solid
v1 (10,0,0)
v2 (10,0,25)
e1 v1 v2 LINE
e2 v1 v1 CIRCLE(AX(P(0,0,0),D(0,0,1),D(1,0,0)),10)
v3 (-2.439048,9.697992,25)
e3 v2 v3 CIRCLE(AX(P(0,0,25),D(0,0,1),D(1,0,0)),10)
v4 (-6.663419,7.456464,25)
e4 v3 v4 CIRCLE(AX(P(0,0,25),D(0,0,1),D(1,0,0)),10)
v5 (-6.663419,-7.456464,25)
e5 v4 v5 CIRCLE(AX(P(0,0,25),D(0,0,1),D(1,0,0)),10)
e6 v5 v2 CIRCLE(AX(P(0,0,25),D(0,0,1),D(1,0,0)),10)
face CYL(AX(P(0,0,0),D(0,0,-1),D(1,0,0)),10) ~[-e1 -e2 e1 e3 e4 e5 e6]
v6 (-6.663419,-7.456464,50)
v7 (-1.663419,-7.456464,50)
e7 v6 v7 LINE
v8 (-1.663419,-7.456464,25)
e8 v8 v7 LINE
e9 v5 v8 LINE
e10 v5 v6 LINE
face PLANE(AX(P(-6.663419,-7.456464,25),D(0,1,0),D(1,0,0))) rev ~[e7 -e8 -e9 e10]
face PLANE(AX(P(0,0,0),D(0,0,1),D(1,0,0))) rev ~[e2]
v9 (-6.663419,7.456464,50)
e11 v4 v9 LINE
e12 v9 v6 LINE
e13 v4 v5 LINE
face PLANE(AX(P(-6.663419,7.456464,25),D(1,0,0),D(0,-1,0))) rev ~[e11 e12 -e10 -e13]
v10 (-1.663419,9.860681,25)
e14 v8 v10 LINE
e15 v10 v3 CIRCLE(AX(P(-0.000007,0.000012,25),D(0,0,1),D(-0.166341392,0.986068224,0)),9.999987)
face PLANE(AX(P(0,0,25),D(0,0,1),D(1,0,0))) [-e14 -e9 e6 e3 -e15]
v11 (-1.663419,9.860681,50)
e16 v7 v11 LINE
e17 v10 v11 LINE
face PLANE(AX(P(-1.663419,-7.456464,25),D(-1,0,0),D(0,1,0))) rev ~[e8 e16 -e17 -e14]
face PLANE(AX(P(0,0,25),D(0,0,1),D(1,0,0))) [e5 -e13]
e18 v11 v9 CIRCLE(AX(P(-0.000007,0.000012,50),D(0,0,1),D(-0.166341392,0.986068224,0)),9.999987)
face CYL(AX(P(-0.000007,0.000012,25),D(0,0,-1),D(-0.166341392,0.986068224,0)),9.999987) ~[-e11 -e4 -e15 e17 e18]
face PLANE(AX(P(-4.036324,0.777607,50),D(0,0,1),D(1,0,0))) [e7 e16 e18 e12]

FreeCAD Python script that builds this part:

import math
import FreeCAD as App
import Part
import Sketcher
Q = App.Units.Quantity

doc = App.newDocument("Part")
body = doc.addObject("PartDesign::Body", "Body")

# Sketch on XY plane
sketch1 = body.newObject("Sketcher::SketchObject", "Sketch")
sketch1.AttachmentSupport = (doc.getObject("XY_Plane"), [""])
sketch1.MapMode = "FlatFace"
sketch1.addGeometry(Part.Circle(App.Vector(0, 0, 0), App.Vector(0, 0, 1), 10), False)
sketch1.addConstraint([
    Sketcher.Constraint("Coincident", 0, 3, -1, 1),
    Sketcher.Constraint("Diameter", 0, Q("20 mm")),
])
pad1 = body.newObject("PartDesign::Pad", "Pad")
pad1.Profile = sketch1
pad1.Length = 25

# Sketch on XY plane
sketch2 = body.newObject("Sketcher::SketchObject", "Sketch001")
sketch2.AttachmentSupport = (doc.getObject("XY_Plane"), [""])
sketch2.MapMode = "FlatFace"
sketch2.AttachmentOffset = App.Placement(App.Vector(0, 0, 25), App.Rotation())
sketch2.addGeometry([
    Part.LineSegment(App.Vector(-7, 7, 0), App.Vector(-7, -7, 0)),
    Part.LineSegment(App.Vector(-7, -7, 0), App.Vector(-2, -7, 0)),
    Part.LineSegment(App.Vector(-2, -7, 0), App.Vector(-2, 10, 0)),
    Part.ArcOfCircle(Part.Circle(App.Vector(0, 0, 0), App.Vector(0, 0, 1), 10), math.radians(100), math.radians(132)),
], False)
sketch2.addConstraint([
    Sketcher.Constraint("Coincident", 0, 2, 1, 1),
    Sketcher.Constraint("Coincident", 1, 2, 2, 1),
    Sketcher.Constraint("Coincident", 2, 2, 3, 1),
    Sketcher.Constraint("Coincident", 3, 2, 0, 1),
    Sketcher.Constraint("Vertical", 0),
    Sketcher.Constraint("Horizontal", 1),
    Sketcher.Constraint("Vertical", 2),
    Sketcher.Constraint("DistanceX", 1, 1, 1, 2, Q("5 mm")),
    Sketcher.Constraint("Radius", 3, Q("9.999987 mm")),
    Sketcher.Constraint("DistanceY", 0, 2, 0, 1, Q("14.912928 mm")),
    Sketcher.Constraint("DistanceY", 2, 1, 2, 2, Q("17.317145 mm")),
    Sketcher.Constraint("DistanceX", 0, 2, -1, 1, Q("6.663419 mm")),
    Sketcher.Constraint("DistanceY", -1, 1, 2, 2, Q("9.860681 mm")),
])
pad2 = body.newObject("PartDesign::Pad", "Pad001")
pad2.Profile = sketch2
pad2.Length = 25

doc.recompute()
